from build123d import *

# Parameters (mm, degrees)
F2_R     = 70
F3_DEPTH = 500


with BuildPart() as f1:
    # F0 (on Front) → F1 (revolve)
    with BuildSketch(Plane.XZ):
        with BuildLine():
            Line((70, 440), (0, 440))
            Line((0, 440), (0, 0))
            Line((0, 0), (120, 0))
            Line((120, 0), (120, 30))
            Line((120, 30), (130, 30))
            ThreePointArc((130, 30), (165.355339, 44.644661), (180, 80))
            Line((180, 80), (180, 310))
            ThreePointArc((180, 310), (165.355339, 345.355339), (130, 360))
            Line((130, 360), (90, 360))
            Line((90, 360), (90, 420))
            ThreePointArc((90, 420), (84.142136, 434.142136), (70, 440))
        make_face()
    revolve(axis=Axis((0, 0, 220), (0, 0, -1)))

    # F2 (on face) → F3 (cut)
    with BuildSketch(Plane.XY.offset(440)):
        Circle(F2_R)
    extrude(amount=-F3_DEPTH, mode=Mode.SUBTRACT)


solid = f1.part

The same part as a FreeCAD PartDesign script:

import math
import FreeCAD as App
import Part
import Sketcher

doc = App.newDocument("Part")
body = doc.addObject("PartDesign::Body", "Body")

# Sketch on XZ plane
sketch1 = body.newObject("Sketcher::SketchObject", "Sketch")
sketch1.AttachmentSupport = (doc.getObject("XZ_Plane"), [""])
sketch1.MapMode = "FlatFace"
sketch1.addGeometry([
    Part.LineSegment(App.Vector(70, 440, 0), App.Vector(0, 440, 0)),  # 0
    Part.LineSegment(App.Vector(0, 440, 0), App.Vector(0, 0, 0)),  # 1
    Part.LineSegment(App.Vector(0, 0, 0), App.Vector(120, 0, 0)),  # 2
    Part.LineSegment(App.Vector(120, 0, 0), App.Vector(120, 30, 0)),  # 3
    Part.LineSegment(App.Vector(120, 30, 0), App.Vector(130, 30, 0)),  # 4
    Part.ArcOfCircle(Part.Circle(App.Vector(130, 80, 0), App.Vector(0, 0, 1), 50), math.radians(-90), math.radians(0)),  # 5
    Part.LineSegment(App.Vector(180, 80, 0), App.Vector(180, 310, 0)),  # 6
    Part.ArcOfCircle(Part.Circle(App.Vector(130, 310, 0), App.Vector(0, 0, 1), 50), math.radians(0), math.radians(90)),  # 7
    Part.LineSegment(App.Vector(130, 360, 0), App.Vector(90, 360, 0)),  # 8
    Part.LineSegment(App.Vector(90, 360, 0), App.Vector(90, 420, 0)),  # 9
    Part.ArcOfCircle(Part.Circle(App.Vector(70, 420, 0), App.Vector(0, 0, 1), 20), math.radians(0), math.radians(90)),  # 10
], False)
sketch1.addConstraint([
    Sketcher.Constraint("Coincident", 0, 2, 1, 1),
    Sketcher.Constraint("Coincident", 1, 2, 2, 1),
    Sketcher.Constraint("Coincident", 2, 2, 3, 1),
    Sketcher.Constraint("Coincident", 3, 2, 4, 1),
    Sketcher.Constraint("Tangent", 4, 2, 5, 1),
    Sketcher.Constraint("Tangent", 5, 2, 6, 1),
    Sketcher.Constraint("Tangent", 6, 2, 7, 1),
    Sketcher.Constraint("Tangent", 7, 2, 8, 1),
    Sketcher.Constraint("Coincident", 8, 2, 9, 1),
    Sketcher.Constraint("Tangent", 9, 2, 10, 1),
    Sketcher.Constraint("Tangent", 10, 2, 0, 1),
    Sketcher.Constraint("Horizontal", 0),
    Sketcher.Constraint("Vertical", 1),
    Sketcher.Constraint("Horizontal", 2),
    Sketcher.Constraint("Vertical", 3),
    Sketcher.Constraint("Horizontal", 4),
    Sketcher.Constraint("Vertical", 6),
    Sketcher.Constraint("Horizontal", 8),
    Sketcher.Constraint("Vertical", 9),
    Sketcher.Constraint("Coincident", 1, 2, -1, 1),
    Sketcher.Constraint("Equal", 5, 7),
    Sketcher.Constraint("Radius", 5, 50.0),
    Sketcher.Constraint("Radius", 10, 19.999999),
    Sketcher.Constraint("DistanceX", 0, 2, 0, 1, 70.0),
    Sketcher.Constraint("DistanceX", 2, 1, 2, 2, 120.0),
    Sketcher.Constraint("DistanceX", 4, 1, 4, 2, 10.0),
    Sketcher.Constraint("DistanceY", 1, 2, 1, 1, 440.0),
    Sketcher.Constraint("DistanceY", 3, 1, 3, 2, 30.0),
    Sketcher.Constraint("DistanceY", 6, 1, 6, 2, 230.0),
])
revolution = body.newObject("PartDesign::Revolution", "Revolution")
revolution.Profile = sketch1
revolution.ReferenceAxis = (sketch1, ["V_Axis"])
revolution.Angle = 360

# Sketch on XY plane
sketch2 = body.newObject("Sketcher::SketchObject", "Sketch001")
sketch2.AttachmentSupport = (doc.getObject("XY_Plane"), [""])
sketch2.MapMode = "FlatFace"
sketch2.AttachmentOffset = App.Placement(App.Vector(0, 0, 440), App.Rotation())
sketch2.addGeometry(Part.Circle(App.Vector(0, 0, 0), App.Vector(0, 0, 1), 70), False)
sketch2.addConstraint([
    Sketcher.Constraint("Coincident", 0, 3, -1, 1),
    Sketcher.Constraint("Diameter", 0, 140.0),
])
pocket1 = body.newObject("PartDesign::Pocket", "Pocket")
pocket1.Profile = sketch2
pocket1.Length = 500

doc.recompute()
